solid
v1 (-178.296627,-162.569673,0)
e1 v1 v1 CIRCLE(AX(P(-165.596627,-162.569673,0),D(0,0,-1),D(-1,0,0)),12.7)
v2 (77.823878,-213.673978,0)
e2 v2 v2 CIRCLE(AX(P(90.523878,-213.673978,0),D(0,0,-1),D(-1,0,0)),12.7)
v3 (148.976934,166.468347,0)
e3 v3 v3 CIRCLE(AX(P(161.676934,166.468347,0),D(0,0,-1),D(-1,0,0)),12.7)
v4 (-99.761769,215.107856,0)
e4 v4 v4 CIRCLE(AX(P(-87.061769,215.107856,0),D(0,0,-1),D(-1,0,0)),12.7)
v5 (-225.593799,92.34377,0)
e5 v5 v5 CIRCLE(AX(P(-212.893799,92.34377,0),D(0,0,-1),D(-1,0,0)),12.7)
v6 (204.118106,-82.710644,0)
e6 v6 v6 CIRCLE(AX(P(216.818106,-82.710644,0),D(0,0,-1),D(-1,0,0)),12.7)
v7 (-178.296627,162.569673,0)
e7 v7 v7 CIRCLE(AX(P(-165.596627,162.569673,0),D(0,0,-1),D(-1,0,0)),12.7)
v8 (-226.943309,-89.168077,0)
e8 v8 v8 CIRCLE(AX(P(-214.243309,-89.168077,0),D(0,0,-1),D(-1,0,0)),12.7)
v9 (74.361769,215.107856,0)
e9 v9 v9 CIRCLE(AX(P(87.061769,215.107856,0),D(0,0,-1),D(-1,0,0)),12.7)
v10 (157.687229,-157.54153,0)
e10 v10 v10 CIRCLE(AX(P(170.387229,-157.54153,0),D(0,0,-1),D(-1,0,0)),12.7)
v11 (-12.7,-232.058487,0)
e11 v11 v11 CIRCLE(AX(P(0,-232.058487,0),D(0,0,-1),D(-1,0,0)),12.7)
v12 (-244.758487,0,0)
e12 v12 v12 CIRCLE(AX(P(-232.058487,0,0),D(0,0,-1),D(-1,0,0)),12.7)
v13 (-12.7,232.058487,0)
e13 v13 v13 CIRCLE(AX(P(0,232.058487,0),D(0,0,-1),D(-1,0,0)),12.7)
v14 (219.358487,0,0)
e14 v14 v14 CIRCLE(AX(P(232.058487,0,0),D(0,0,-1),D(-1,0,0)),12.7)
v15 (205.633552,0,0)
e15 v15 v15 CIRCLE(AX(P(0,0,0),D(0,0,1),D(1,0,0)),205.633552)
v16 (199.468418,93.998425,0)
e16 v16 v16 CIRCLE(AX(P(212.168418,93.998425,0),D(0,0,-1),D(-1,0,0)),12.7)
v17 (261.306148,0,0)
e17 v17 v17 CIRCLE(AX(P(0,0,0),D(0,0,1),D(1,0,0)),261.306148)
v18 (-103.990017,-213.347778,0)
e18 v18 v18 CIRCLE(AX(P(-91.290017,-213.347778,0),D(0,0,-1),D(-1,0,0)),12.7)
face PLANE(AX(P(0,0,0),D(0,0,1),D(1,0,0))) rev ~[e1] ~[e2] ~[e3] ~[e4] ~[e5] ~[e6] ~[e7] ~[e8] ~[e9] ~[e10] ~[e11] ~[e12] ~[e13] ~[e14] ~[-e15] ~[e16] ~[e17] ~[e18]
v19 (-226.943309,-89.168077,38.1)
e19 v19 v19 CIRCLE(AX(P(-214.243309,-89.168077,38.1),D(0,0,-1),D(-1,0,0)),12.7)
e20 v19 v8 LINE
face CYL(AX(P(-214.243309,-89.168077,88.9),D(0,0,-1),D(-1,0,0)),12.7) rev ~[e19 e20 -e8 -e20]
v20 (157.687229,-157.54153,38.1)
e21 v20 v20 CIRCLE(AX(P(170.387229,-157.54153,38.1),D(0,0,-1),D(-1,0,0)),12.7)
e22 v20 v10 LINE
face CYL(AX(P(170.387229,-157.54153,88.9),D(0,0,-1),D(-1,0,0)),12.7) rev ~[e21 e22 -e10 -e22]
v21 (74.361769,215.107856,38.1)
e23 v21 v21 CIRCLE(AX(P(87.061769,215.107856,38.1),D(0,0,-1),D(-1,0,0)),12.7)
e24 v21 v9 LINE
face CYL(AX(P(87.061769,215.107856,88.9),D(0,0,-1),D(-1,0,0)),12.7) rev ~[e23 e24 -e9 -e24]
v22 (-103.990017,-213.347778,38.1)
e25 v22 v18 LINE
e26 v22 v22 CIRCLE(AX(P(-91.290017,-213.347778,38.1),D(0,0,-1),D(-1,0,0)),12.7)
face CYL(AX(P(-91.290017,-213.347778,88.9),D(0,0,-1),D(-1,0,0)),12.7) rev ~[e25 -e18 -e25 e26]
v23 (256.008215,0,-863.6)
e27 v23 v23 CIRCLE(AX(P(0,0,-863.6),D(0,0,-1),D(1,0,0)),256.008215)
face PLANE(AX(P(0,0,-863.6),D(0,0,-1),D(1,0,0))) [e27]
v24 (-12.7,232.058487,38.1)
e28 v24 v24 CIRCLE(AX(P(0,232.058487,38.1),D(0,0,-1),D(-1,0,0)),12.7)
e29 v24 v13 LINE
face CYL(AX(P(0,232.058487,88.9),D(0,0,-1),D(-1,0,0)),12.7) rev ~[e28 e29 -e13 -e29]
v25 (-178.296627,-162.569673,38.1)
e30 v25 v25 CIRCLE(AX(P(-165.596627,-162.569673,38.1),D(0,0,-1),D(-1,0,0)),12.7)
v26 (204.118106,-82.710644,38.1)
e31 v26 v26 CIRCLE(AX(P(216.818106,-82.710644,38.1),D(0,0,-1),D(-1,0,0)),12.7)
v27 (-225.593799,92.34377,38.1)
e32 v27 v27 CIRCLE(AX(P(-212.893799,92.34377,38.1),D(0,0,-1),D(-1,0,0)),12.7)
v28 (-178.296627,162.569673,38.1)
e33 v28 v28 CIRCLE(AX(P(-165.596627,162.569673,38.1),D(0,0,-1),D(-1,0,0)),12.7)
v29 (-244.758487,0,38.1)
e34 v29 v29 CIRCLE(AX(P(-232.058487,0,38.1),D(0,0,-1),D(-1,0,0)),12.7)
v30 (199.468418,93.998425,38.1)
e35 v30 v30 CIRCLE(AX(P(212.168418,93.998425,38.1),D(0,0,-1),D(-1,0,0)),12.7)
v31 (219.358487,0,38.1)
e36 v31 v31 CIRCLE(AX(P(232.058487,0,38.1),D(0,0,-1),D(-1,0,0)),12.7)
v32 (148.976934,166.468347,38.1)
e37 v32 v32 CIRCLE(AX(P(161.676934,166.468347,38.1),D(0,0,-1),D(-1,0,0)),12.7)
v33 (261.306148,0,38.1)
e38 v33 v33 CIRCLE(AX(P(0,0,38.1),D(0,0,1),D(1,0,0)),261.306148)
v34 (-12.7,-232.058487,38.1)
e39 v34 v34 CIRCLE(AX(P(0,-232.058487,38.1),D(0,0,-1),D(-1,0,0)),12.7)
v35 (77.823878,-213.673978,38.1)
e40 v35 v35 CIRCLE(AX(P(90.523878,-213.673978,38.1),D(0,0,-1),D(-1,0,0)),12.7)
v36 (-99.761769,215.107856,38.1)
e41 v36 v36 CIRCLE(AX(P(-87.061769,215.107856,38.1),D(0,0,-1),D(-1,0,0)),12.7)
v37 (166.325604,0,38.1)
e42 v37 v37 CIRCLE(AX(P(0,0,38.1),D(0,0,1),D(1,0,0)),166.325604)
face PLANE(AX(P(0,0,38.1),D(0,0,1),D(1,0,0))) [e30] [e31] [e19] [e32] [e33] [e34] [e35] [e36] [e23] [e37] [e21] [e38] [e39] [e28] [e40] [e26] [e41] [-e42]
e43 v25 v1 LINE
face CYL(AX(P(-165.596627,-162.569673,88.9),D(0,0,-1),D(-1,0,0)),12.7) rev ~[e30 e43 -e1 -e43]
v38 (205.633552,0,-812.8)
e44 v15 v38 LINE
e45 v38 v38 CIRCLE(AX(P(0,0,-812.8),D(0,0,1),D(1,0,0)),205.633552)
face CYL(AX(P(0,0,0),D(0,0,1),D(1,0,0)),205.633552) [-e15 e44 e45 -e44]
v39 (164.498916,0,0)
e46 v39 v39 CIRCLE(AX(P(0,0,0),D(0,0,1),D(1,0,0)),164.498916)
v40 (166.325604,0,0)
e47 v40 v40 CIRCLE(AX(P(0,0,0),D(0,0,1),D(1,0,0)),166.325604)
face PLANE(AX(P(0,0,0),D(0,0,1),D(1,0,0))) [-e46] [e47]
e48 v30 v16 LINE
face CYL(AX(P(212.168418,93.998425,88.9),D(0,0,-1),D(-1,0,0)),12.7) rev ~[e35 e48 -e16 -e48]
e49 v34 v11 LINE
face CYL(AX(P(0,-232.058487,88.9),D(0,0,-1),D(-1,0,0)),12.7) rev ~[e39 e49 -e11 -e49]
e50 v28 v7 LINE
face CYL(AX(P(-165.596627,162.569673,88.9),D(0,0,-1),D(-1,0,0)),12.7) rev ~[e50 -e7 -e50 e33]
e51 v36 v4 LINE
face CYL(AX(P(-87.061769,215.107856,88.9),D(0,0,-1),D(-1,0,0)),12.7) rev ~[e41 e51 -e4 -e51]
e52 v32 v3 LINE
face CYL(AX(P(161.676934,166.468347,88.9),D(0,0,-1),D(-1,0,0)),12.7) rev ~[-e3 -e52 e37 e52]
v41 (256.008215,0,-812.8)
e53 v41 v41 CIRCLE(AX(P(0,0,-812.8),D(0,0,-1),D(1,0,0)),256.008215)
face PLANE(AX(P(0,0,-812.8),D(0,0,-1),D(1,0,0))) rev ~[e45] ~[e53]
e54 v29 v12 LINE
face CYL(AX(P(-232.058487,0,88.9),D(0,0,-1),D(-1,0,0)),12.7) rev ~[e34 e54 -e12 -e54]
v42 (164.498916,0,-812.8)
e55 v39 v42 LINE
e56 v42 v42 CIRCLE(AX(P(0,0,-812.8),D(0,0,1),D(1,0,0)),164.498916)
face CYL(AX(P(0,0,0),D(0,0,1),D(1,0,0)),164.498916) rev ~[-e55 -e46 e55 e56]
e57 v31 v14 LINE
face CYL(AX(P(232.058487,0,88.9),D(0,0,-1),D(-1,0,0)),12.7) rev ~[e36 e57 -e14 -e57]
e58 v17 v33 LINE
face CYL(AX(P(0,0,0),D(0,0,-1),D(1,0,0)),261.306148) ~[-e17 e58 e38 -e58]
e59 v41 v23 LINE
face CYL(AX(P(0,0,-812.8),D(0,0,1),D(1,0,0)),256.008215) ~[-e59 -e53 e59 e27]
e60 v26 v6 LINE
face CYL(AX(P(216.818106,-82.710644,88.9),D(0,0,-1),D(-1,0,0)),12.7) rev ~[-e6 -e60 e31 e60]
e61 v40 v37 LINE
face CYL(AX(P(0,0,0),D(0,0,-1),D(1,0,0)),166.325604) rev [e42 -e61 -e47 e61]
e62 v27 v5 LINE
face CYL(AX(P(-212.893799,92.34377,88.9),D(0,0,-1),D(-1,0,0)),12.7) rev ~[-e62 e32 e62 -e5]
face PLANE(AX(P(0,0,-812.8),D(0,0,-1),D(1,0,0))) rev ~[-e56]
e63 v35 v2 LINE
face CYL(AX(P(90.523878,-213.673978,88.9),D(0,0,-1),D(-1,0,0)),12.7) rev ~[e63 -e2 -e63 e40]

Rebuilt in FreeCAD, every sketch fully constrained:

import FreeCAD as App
import Part
import Sketcher
from FreeCAD import Vector
Q = App.Units.Quantity

doc = App.newDocument("Part")
params = doc.addObject("Spreadsheet::Sheet", "Params")
for row, (alias, value) in enumerate([
    ("pad1_length", "32 in"),
    ("pad2_length", "2 in"),
    ("pad3_length", "1.5 in"),
    ("sketch4_diameter", "1 in"),
    ("hole_diameter", "1 in"),
    ("hole_depth", "2 in"),
], start=1):
    params.set(f"A{row}", alias)
    params.set(f"B{row}", "=" + value)
    params.setAlias(f"B{row}", alias)

body = doc.addObject("PartDesign::Body", "Body")

sketch1 = body.newObject("Sketcher::SketchObject", "Sketch")
sketch1.AttachmentSupport = (doc.getObject("XY_Plane"), [""])
sketch1.MapMode = "FlatFace"
sketch1.addGeometry(Part.Circle(Vector(0, 0, 0), Vector(0, 0, 1), 206), False)
sketch1.addGeometry(Part.Circle(Vector(0, 0, 0), Vector(0, 0, 1), 164), False)
sketch1.addConstraint(Sketcher.Constraint("Coincident", 0, 3, -1, 1))
sketch1.addConstraint(Sketcher.Constraint("Coincident", 1, 3, -1, 1))
sketch1.addConstraint(Sketcher.Constraint("Diameter", 1, 328.997832))
sketch1.addConstraint(Sketcher.Constraint("Diameter", 0, 411.267104))
pad1 = body.newObject("PartDesign::Pad", "Pad")
pad1.Profile = sketch1
pad1.setExpression("Length", "Params.pad1_length")
pad1.Reversed = True

sketch2 = body.newObject("Sketcher::SketchObject", "Sketch001")
sketch2.AttachmentSupport = (doc.getObject("XY_Plane"), [""])
sketch2.MapMode = "FlatFace"
sketch2.AttachmentOffset = App.Placement(Vector(0, 0, -32 * 25.4), App.Rotation())
sketch2.addGeometry(Part.Circle(Vector(0, 0, 0), Vector(0, 0, 1), 256), False)
sketch2.addConstraint(Sketcher.Constraint("Coincident", 0, 3, -1, 1))
sketch2.addConstraint(Sketcher.Constraint("Diameter", 0, 512.01643))
pad2 = body.newObject("PartDesign::Pad", "Pad001")
pad2.Profile = sketch2
pad2.setExpression("Length", "Params.pad2_length")
pad2.Reversed = True

sketch3 = body.newObject("Sketcher::SketchObject", "Sketch002")
sketch3.AttachmentSupport = (doc.getObject("XY_Plane"), [""])
sketch3.MapMode = "FlatFace"
sketch3.addGeometry(Part.Circle(Vector(0, 0, 0), Vector(0, 0, 1), 261), False)
sketch3.addGeometry(Part.Circle(Vector(0, 0, 0), Vector(0, 0, 1), 166), False)
sketch3.addConstraint(Sketcher.Constraint("Coincident", 0, 3, -1, 1))
sketch3.addConstraint(Sketcher.Constraint("Coincident", 1, 3, -1, 1))
sketch3.addConstraint(Sketcher.Constraint("Diameter", 1, 332.651208))
sketch3.addConstraint(Sketcher.Constraint("Diameter", 0, 522.612296))
pad3 = body.newObject("PartDesign::Pad", "Pad002")
pad3.Profile = sketch3
pad3.setExpression("Length", "Params.pad3_length")

sketch4 = body.newObject("Sketcher::SketchObject", "Sketch003")
sketch4.AttachmentSupport = (doc.getObject("XY_Plane"), [""])
sketch4.MapMode = "FlatFace"
sketch4.AttachmentOffset = App.Placement(Vector(0, 0, 1.5 * 25.4), App.Rotation())
sketch4.addGeometry(Part.Circle(Vector(87, 215, 0), Vector(0, 0, 1), 13), False)
sketch4.addGeometry(Part.Circle(Vector(162, 166, 0), Vector(0, 0, 1), 13), False)
sketch4.addGeometry(Part.Circle(Vector(212, 94, 0), Vector(0, 0, 1), 13), False)
sketch4.addGeometry(Part.Circle(Vector(232, 0, 0), Vector(0, 0, 1), 13), False)
sketch4.addGeometry(Part.Circle(Vector(217, -83, 0), Vector(0, 0, 1), 13), False)
sketch4.addGeometry(Part.Circle(Vector(170, -158, 0), Vector(0, 0, 1), 13), False)
sketch4.addGeometry(Part.Circle(Vector(91, -214, 0), Vector(0, 0, 1), 13), False)
sketch4.addGeometry(Part.Circle(Vector(0, -232, 0), Vector(0, 0, 1), 13), False)
sketch4.addGeometry(Part.Circle(Vector(-91, -213, 0), Vector(0, 0, 1), 13), False)
sketch4.addGeometry(Part.Circle(Vector(-166, -163, 0), Vector(0, 0, 1), 13), False)
sketch4.addGeometry(Part.Circle(Vector(-214, -89, 0), Vector(0, 0, 1), 13), False)
sketch4.addGeometry(Part.Circle(Vector(-232, 0, 0), Vector(0, 0, 1), 13), False)
sketch4.addGeometry(Part.Circle(Vector(-213, 92, 0), Vector(0, 0, 1), 13), False)
sketch4.addGeometry(Part.Circle(Vector(-166, 163, 0), Vector(0, 0, 1), 13), False)
sketch4.addGeometry(Part.Circle(Vector(-87, 215, 0), Vector(0, 0, 1), 13), False)
sketch4.addGeometry(Part.Circle(Vector(0, 232, 0), Vector(0, 0, 1), 13), False)
sketch4.addConstraint(Sketcher.Constraint("Equal", 0, 1))
sketch4.addConstraint(Sketcher.Constraint("Equal", 1, 2))
sketch4.addConstraint(Sketcher.Constraint("Equal", 2, 3))
sketch4.addConstraint(Sketcher.Constraint("Equal", 3, 4))
sketch4.addConstraint(Sketcher.Constraint("Equal", 4, 5))
sketch4.addConstraint(Sketcher.Constraint("Equal", 5, 6))
sketch4.addConstraint(Sketcher.Constraint("Equal", 6, 7))
sketch4.addConstraint(Sketcher.Constraint("Equal", 7, 8))
sketch4.addConstraint(Sketcher.Constraint("Equal", 8, 9))
sketch4.addConstraint(Sketcher.Constraint("Equal", 9, 10))
sketch4.addConstraint(Sketcher.Constraint("Equal", 10, 11))
sketch4.addConstraint(Sketcher.Constraint("Equal", 11, 12))
sketch4.addConstraint(Sketcher.Constraint("Equal", 12, 13))
sketch4.addConstraint(Sketcher.Constraint("Equal", 13, 14))
sketch4.addConstraint(Sketcher.Constraint("Equal", 14, 15))
sketch4.addConstraint(Sketcher.Constraint("Symmetric", 3, 3, 11, 3, -1, 1))
sketch4.addConstraint(Sketcher.Constraint("Symmetric", 7, 3, 15, 3, -1, 1))
sketch4.addConstraint(Sketcher.Constraint("Symmetric", 0, 3, 14, 3, -2))
sketch4.addConstraint(Sketcher.Constraint("Symmetric", 9, 3, 13, 3, -1))
sketch4.addConstraint(Sketcher.Constraint("PointOnObject", 3, 3, -1))
sketch4.addConstraint(Sketcher.Constraint("PointOnObject", 7, 3, -2))
sketch4.addConstraint(Sketcher.Constraint("Diameter", 0, Q("1 in")))
sketch4.addConstraint(Sketcher.Constraint("DistanceX", 12, 3, -1, 1, 212.893799))
sketch4.addConstraint(Sketcher.Constraint("DistanceY", 4, 3, 0, 3, 297.8185))
sketch4.addConstraint(Sketcher.Constraint("DistanceY", 6, 3, 8, 3, 0.3262))
sketch4.addConstraint(Sketcher.Constraint("DistanceY", 8, 3, 10, 3, 124.179701))
sketch4.addConstraint(Sketcher.Constraint("DistanceX", -1, 1, 0, 3, 87.061769))
sketch4.addConstraint(Sketcher.Constraint("DistanceX", -1, 1, 2, 3, 212.168418))
sketch4.addConstraint(Sketcher.Constraint("DistanceX", -1, 1, 5, 3, 170.387229))
sketch4.addConstraint(Sketcher.Constraint("DistanceY", 5, 3, -1, 1, 157.54153))
sketch4.addConstraint(Sketcher.Constraint("DistanceY", 6, 3, -1, 1, 213.673978))
sketch4.addConstraint(Sketcher.Constraint("DistanceX", 10, 3, -1, 1, 214.243309))
sketch4.addConstraint(Sketcher.Constraint("DistanceY", -1, 1, 12, 3, 92.34377))
sketch4.addConstraint(Sketcher.Constraint("DistanceY", 1, 3, 0, 3, 48.639509))
sketch4.addConstraint(Sketcher.Constraint("DistanceY", 2, 3, 1, 3, 72.469922))
sketch4.addConstraint(Sketcher.Constraint("DistanceX", 2, 3, 3, 3, 19.890069))
sketch4.addConstraint(Sketcher.Constraint("DistanceX", 4, 3, 3, 3, 15.240381))
sketch4.addConstraint(Sketcher.Constraint("DistanceX", 6, 3, 5, 3, 79.863351))
sketch4.addConstraint(Sketcher.Constraint("DistanceY", 7, 3, 6, 3, 18.384509))
sketch4.addConstraint(Sketcher.Constraint("DistanceY", 7, 3, 2, 3, 326.056912))
sketch4.addConstraint(Sketcher.Constraint("DistanceX", 9, 3, 8, 3, 74.30661))
sketch4.addConstraint(Sketcher.Constraint("DistanceY", 9, 3, 4, 3, 79.859029))
sketch4.addConstraint(Sketcher.Constraint("DistanceX", 10, 3, 9, 3, 48.646682))
sketch4.addConstraint(Sketcher.Constraint("DistanceX", -1, 1, 1, 3, 161.676934))
sketch4.setExpression("Constraints[21]", "Params.sketch4_diameter")
doc.recompute()
hole = body.newObject("PartDesign::Hole", "Hole")
hole.Profile = sketch4
hole.ThreadType = "None"
hole.setExpression("Diameter", "Params.hole_diameter")
hole.DepthType = "Dimension"
hole.setExpression("Depth", "Params.hole_depth")
hole.DrillPoint = "Flat"

doc.recompute()
